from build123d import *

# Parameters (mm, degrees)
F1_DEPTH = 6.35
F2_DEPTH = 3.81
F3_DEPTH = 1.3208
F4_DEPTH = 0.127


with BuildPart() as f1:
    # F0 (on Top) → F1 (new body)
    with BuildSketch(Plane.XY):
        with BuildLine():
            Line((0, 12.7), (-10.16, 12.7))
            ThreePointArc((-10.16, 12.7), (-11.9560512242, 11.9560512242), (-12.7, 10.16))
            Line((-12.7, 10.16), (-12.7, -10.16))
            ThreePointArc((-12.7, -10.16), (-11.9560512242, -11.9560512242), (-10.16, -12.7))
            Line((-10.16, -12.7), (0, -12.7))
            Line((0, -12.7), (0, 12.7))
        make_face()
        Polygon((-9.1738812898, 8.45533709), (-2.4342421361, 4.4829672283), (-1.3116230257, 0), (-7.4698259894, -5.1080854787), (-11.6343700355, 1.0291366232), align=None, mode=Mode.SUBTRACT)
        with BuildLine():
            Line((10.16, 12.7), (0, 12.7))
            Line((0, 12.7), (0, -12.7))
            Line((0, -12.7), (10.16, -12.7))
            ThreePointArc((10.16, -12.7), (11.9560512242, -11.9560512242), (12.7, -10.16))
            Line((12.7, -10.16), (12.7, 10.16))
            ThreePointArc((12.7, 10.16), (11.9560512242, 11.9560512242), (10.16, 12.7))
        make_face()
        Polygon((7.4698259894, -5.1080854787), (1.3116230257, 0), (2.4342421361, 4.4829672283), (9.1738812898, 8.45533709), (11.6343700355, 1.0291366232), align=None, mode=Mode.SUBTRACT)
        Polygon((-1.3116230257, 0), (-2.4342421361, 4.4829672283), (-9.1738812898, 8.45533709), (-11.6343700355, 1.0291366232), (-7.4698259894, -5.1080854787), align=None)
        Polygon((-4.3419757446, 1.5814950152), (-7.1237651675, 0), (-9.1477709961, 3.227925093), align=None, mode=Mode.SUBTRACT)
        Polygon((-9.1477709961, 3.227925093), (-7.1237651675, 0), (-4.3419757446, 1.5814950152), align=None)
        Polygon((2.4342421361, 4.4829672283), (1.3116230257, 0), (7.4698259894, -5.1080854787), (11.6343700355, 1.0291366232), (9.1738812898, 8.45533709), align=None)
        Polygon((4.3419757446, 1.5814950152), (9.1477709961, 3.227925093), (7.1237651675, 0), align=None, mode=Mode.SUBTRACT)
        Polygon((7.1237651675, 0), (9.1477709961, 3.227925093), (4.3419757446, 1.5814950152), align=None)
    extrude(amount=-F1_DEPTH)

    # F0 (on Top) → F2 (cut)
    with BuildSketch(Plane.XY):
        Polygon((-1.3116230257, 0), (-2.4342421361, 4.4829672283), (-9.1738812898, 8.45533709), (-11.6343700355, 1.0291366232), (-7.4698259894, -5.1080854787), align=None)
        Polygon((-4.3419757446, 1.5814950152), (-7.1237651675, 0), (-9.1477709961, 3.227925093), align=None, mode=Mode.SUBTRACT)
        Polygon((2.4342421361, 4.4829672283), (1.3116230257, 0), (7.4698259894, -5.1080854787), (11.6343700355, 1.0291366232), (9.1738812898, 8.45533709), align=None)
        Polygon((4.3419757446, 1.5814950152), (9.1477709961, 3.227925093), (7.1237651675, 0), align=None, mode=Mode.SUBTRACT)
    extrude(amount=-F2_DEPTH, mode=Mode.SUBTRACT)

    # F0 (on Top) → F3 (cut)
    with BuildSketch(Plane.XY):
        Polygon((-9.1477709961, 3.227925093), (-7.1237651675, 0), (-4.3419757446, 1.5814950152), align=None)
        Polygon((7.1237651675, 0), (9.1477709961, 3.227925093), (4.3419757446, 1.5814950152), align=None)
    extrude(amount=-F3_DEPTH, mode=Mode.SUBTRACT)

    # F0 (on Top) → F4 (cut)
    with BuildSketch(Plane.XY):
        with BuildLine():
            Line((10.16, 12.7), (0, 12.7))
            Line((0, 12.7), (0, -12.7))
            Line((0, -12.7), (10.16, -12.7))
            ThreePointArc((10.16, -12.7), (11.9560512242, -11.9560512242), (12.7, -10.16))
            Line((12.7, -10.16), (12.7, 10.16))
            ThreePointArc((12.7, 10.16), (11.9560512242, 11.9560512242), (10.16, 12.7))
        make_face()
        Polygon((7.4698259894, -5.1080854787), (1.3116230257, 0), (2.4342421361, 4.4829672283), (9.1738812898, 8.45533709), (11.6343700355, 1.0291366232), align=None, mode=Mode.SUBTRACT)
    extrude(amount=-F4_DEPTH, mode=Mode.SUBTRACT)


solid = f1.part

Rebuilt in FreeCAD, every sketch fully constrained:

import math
import FreeCAD as App
import Part
import Sketcher
Q = App.Units.Quantity

doc = App.newDocument("Part")
body = doc.addObject("PartDesign::Body", "Body")

sketch1 = body.newObject("Sketcher::SketchObject", "Sketch")
sketch1.AttachmentSupport = (doc.getObject("XY_Plane"), [""])
sketch1.MapMode = "FlatFace"
sketch1.addGeometry([
    Part.ArcOfCircle(Part.Circle(App.Vector(-10.16, 10.16, 0), App.Vector(0, 0, 1), 2.54), math.radians(90), math.radians(180)),
    Part.LineSegment(App.Vector(-12.7, 10.16, 0), App.Vector(-12.7, -10.16, 0)),
    Part.ArcOfCircle(Part.Circle(App.Vector(-10.16, -10.16, 0), App.Vector(0, 0, 1), 2.54), math.radians(180), math.radians(270)),
    Part.LineSegment(App.Vector(-10.16, -12.7, 0), App.Vector(10.16, -12.7, 0)),
    Part.ArcOfCircle(Part.Circle(App.Vector(10.16, -10.16, 0), App.Vector(0, 0, 1), 2.54), math.radians(-90), math.radians(0)),
    Part.LineSegment(App.Vector(12.7, -10.16, 0), App.Vector(12.7, 10.16, 0)),
    Part.ArcOfCircle(Part.Circle(App.Vector(10.16, 10.16, 0), App.Vector(0, 0, 1), 2.54), math.radians(0), math.radians(90)),
    Part.LineSegment(App.Vector(10.16, 12.7, 0), App.Vector(-10.16, 12.7, 0)),
], False)
sketch1.addConstraint([
    Sketcher.Constraint("Tangent", 0, 2, 1, 1),
    Sketcher.Constraint("Tangent", 1, 2, 2, 1),
    Sketcher.Constraint("Tangent", 2, 2, 3, 1),
    Sketcher.Constraint("Tangent", 3, 2, 4, 1),
    Sketcher.Constraint("Tangent", 4, 2, 5, 1),
    Sketcher.Constraint("Tangent", 5, 2, 6, 1),
    Sketcher.Constraint("Tangent", 6, 2, 7, 1),
    Sketcher.Constraint("Tangent", 7, 2, 0, 1),
    Sketcher.Constraint("Vertical", 1),
    Sketcher.Constraint("Horizontal", 3),
    Sketcher.Constraint("Vertical", 5),
    Sketcher.Constraint("Horizontal", 7),
    Sketcher.Constraint("Equal", 0, 2),
    Sketcher.Constraint("Equal", 2, 4),
    Sketcher.Constraint("Equal", 4, 6),
    Sketcher.Constraint("Symmetric", 0, 3, 4, 3, -1, 1),
    Sketcher.Constraint("Equal", 7, 1),
    Sketcher.Constraint("Radius", 0, Q("0.1 in")),
    Sketcher.Constraint("DistanceX", 3, 1, 3, 2, Q("0.8 in")),
])
pad1 = body.newObject("PartDesign::Pad", "Pad")
pad1.Profile = sketch1
pad1.Length = Q("0.25 in")
pad1.Reversed = True

sketch2 = body.newObject("Sketcher::SketchObject", "Sketch001")
sketch2.AttachmentSupport = (doc.getObject("XY_Plane"), [""])
sketch2.MapMode = "FlatFace"
sketch2.addGeometry([
    Part.LineSegment(App.Vector(-1.311623, 0, 0), App.Vector(-2.434242, 4.482967, 0)),
    Part.LineSegment(App.Vector(-2.434242, 4.482967, 0), App.Vector(-9.173881, 8.455337, 0)),
    Part.LineSegment(App.Vector(-9.173881, 8.455337, 0), App.Vector(-11.63437, 1.029137, 0)),
    Part.LineSegment(App.Vector(-11.63437, 1.029137, 0), App.Vector(-7.469826, -5.108085, 0)),
    Part.LineSegment(App.Vector(-7.469826, -5.108085, 0), App.Vector(-1.311623, 0, 0)),
    Part.LineSegment(App.Vector(-9.147771, 3.227925, 0), App.Vector(-4.341976, 1.581495, 0)),
    Part.LineSegment(App.Vector(-4.341976, 1.581495, 0), App.Vector(-7.123765, 0, 0)),
    Part.LineSegment(App.Vector(-7.123765, 0, 0), App.Vector(-9.147771, 3.227925, 0)),
    Part.LineSegment(App.Vector(2.434242, 4.482967, 0), App.Vector(1.311623, 0, 0)),
    Part.LineSegment(App.Vector(1.311623, 0, 0), App.Vector(7.469826, -5.108085, 0)),
    Part.LineSegment(App.Vector(7.469826, -5.108085, 0), App.Vector(11.63437, 1.029137, 0)),
    Part.LineSegment(App.Vector(11.63437, 1.029137, 0), App.Vector(9.173881, 8.455337, 0)),
    Part.LineSegment(App.Vector(9.173881, 8.455337, 0), App.Vector(2.434242, 4.482967, 0)),
    Part.LineSegment(App.Vector(7.123765, 0, 0), App.Vector(4.341976, 1.581495, 0)),
    Part.LineSegment(App.Vector(4.341976, 1.581495, 0), App.Vector(9.147771, 3.227925, 0)),
    Part.LineSegment(App.Vector(9.147771, 3.227925, 0), App.Vector(7.123765, 0, 0)),
], False)
sketch2.addConstraint([
    Sketcher.Constraint("Coincident", 0, 2, 1, 1),
    Sketcher.Constraint("Coincident", 1, 2, 2, 1),
    Sketcher.Constraint("Coincident", 2, 2, 3, 1),
    Sketcher.Constraint("Coincident", 3, 2, 4, 1),
    Sketcher.Constraint("Coincident", 4, 2, 0, 1),
    Sketcher.Constraint("Coincident", 5, 2, 6, 1),
    Sketcher.Constraint("Coincident", 6, 2, 7, 1),
    Sketcher.Constraint("Coincident", 7, 2, 5, 1),
    Sketcher.Constraint("Coincident", 8, 2, 9, 1),
    Sketcher.Constraint("Coincident", 9, 2, 10, 1),
    Sketcher.Constraint("Coincident", 10, 2, 11, 1),
    Sketcher.Constraint("Coincident", 11, 2, 12, 1),
    Sketcher.Constraint("Coincident", 12, 2, 8, 1),
    Sketcher.Constraint("Coincident", 13, 2, 14, 1),
    Sketcher.Constraint("Coincident", 14, 2, 15, 1),
    Sketcher.Constraint("Coincident", 15, 2, 13, 1),
    Sketcher.Constraint("Symmetric", 4, 2, 8, 2, -1, 1),
    Sketcher.Constraint("Symmetric", 6, 2, 15, 2, -1, 1),
    Sketcher.Constraint("Symmetric", 3, 2, 9, 2, -2),
    Sketcher.Constraint("Symmetric", 2, 2, 10, 2, -2),
    Sketcher.Constraint("Symmetric", 1, 2, 11, 2, -2),
    Sketcher.Constraint("Symmetric", 0, 2, 12, 2, -2),
    Sketcher.Constraint("Symmetric", 5, 2, 13, 2, -2),
    Sketcher.Constraint("Symmetric", 7, 2, 14, 2, -2),
    Sketcher.Constraint("PointOnObject", 4, 2, -1),
    Sketcher.Constraint("PointOnObject", 6, 2, -1),
    Sketcher.Constraint("Equal", 1, 2),
    Sketcher.Constraint("Distance", 5, Q("0.2 in")),
    Sketcher.Constraint("Distance", 7, Q("0.15 in")),
    Sketcher.Constraint("Distance", 1, Q("0.308 in")),
    Sketcher.Constraint("Distance", 3, Q("0.292 in")),
    Sketcher.Constraint("Distance", 4, Q("0.315 in")),
    Sketcher.Constraint("DistanceY", 2, 2, 1, 2, Q("7.4262 mm")),
    Sketcher.Constraint("DistanceX", 2, 2, 7, 2, Q("2.486599 mm")),
    Sketcher.Constraint("DistanceX", 5, 2, 8, 2, Q("5.653599 mm")),
    Sketcher.Constraint("DistanceX", 5, 2, 9, 2, Q("11.811802 mm")),
    Sketcher.Constraint("Distance", 6, Q("3.199919 mm")),
    Sketcher.Constraint("DistanceX", 1, 2, -1, 1, Q("9.173881 mm")),
    Sketcher.Constraint("DistanceX", 1, 2, 0, 2, Q("6.739639 mm")),
    Sketcher.Constraint("DistanceX", 0, 2, 4, 2, Q("1.122619 mm")),
])
pocket1 = body.newObject("PartDesign::Pocket", "Pocket")
pocket1.Profile = sketch2
pocket1.Length = Q("0.15 in")

sketch3 = body.newObject("Sketcher::SketchObject", "Sketch002")
sketch3.AttachmentSupport = (doc.getObject("XY_Plane"), [""])
sketch3.MapMode = "FlatFace"
sketch3.addGeometry([
    Part.LineSegment(App.Vector(-9.147771, 3.227925, 0), App.Vector(-7.123765, 0, 0)),
    Part.LineSegment(App.Vector(-7.123765, 0, 0), App.Vector(-4.341976, 1.581495, 0)),
    Part.LineSegment(App.Vector(-4.341976, 1.581495, 0), App.Vector(-9.147771, 3.227925, 0)),
    Part.LineSegment(App.Vector(7.123765, 0, 0), App.Vector(9.147771, 3.227925, 0)),
    Part.LineSegment(App.Vector(9.147771, 3.227925, 0), App.Vector(4.341976, 1.581495, 0)),
    Part.LineSegment(App.Vector(4.341976, 1.581495, 0), App.Vector(7.123765, 0, 0)),
], False)
sketch3.addConstraint([
    Sketcher.Constraint("Coincident", 0, 2, 1, 1),
    Sketcher.Constraint("Coincident", 1, 2, 2, 1),
    Sketcher.Constraint("Coincident", 2, 2, 0, 1),
    Sketcher.Constraint("Coincident", 3, 2, 4, 1),
    Sketcher.Constraint("Coincident", 4, 2, 5, 1),
    Sketcher.Constraint("Coincident", 5, 2, 3, 1),
    Sketcher.Constraint("Symmetric", 0, 2, 5, 2, -1, 1),
    Sketcher.Constraint("Symmetric", 2, 2, 3, 2, -2),
    Sketcher.Constraint("Symmetric", 1, 2, 4, 2, -2),
    Sketcher.Constraint("PointOnObject", 0, 2, -1),
    Sketcher.Constraint("Distance", 2, Q("0.2 in")),
    Sketcher.Constraint("Distance", 0, Q("0.15 in")),
    Sketcher.Constraint("Distance", 1, Q("3.199919 mm")),
    Sketcher.Constraint("DistanceX", 2, 2, -1, 1, Q("9.147771 mm")),
    Sketcher.Constraint("DistanceX", 0, 2, 1, 2, Q("2.781789 mm")),
])
pocket2 = body.newObject("PartDesign::Pocket", "Pocket001")
pocket2.Profile = sketch3
pocket2.Length = Q("0.052 in")

sketch4 = body.newObject("Sketcher::SketchObject", "Sketch003")
sketch4.AttachmentSupport = (doc.getObject("XY_Plane"), [""])
sketch4.MapMode = "FlatFace"
sketch4.addGeometry([
    Part.LineSegment(App.Vector(10.16, 12.7, 0), App.Vector(0, 12.7, 0)),
    Part.LineSegment(App.Vector(0, 12.7, 0), App.Vector(0, -12.7, 0)),
    Part.LineSegment(App.Vector(0, -12.7, 0), App.Vector(10.16, -12.7, 0)),
    Part.ArcOfCircle(Part.Circle(App.Vector(10.16, -10.16, 0), App.Vector(0, 0, 1), 2.54), math.radians(-90), math.radians(0)),
    Part.LineSegment(App.Vector(12.7, -10.16, 0), App.Vector(12.7, 10.16, 0)),
    Part.ArcOfCircle(Part.Circle(App.Vector(10.16, 10.16, 0), App.Vector(0, 0, 1), 2.54), math.radians(0), math.radians(90)),
    Part.LineSegment(App.Vector(11.63437, 1.029137, 0), App.Vector(7.469826, -5.108085, 0)),
    Part.LineSegment(App.Vector(7.469826, -5.108085, 0), App.Vector(1.311623, 0, 0)),
    Part.LineSegment(App.Vector(1.311623, 0, 0), App.Vector(2.434242, 4.482967, 0)),
    Part.LineSegment(App.Vector(2.434242, 4.482967, 0), App.Vector(9.173881, 8.455337, 0)),
    Part.LineSegment(App.Vector(9.173881, 8.455337, 0), App.Vector(11.63437, 1.029137, 0)),
], False)
sketch4.addConstraint([
    Sketcher.Constraint("Coincident", 0, 2, 1, 1),
    Sketcher.Constraint("Coincident", 1, 2, 2, 1),
    Sketcher.Constraint("Tangent", 2, 2, 3, 1),
    Sketcher.Constraint("Tangent", 3, 2, 4, 1),
    Sketcher.Constraint("Tangent", 4, 2, 5, 1),
    Sketcher.Constraint("Tangent", 5, 2, 0, 1),
    Sketcher.Constraint("Coincident", 6, 2, 7, 1),
    Sketcher.Constraint("Coincident", 7, 2, 8, 1),
    Sketcher.Constraint("Coincident", 8, 2, 9, 1),
    Sketcher.Constraint("Coincident", 9, 2, 10, 1),
    Sketcher.Constraint("Coincident", 10, 2, 6, 1),
    Sketcher.Constraint("Horizontal", 0),
    Sketcher.Constraint("Vertical", 1),
    Sketcher.Constraint("Horizontal", 2),
    Sketcher.Constraint("Vertical", 4),
    Sketcher.Constraint("Equal", 3, 5),
    Sketcher.Constraint("Symmetric", 0, 2, 1, 2, -1, 1),
    Sketcher.Constraint("PointOnObject", 7, 2, -1),
    Sketcher.Constraint("Equal", 9, 10),
    Sketcher.Constraint("Radius", 3, Q("0.1 in")),
    Sketcher.Constraint("DistanceY", 1, 2, 1, 1, Q("1 in")),
    Sketcher.Constraint("DistanceX", 0, 2, 0, 1, Q("0.4 in")),
    Sketcher.Constraint("Distance", 6, Q("0.292 in")),
    Sketcher.Constraint("Distance", 7, Q("0.315 in")),
    Sketcher.Constraint("Distance", 9, Q("0.308 in")),
    Sketcher.Constraint("DistanceY", 10, 2, 9, 2, Q("7.4262 mm")),
    Sketcher.Constraint("DistanceX", -1, 1, 9, 2, Q("9.173881 mm")),
    Sketcher.Constraint("DistanceX", 7, 2, 8, 2, Q("1.122619 mm")),
    Sketcher.Constraint("DistanceX", 8, 2, 9, 2, Q("6.739639 mm")),
    Sketcher.Constraint("Distance", 8, Q("4.621393 mm")),
])
pocket3 = body.newObject("PartDesign::Pocket", "Pocket002")
pocket3.Profile = sketch4
pocket3.Length = Q("0.005 in")

doc.recompute()
